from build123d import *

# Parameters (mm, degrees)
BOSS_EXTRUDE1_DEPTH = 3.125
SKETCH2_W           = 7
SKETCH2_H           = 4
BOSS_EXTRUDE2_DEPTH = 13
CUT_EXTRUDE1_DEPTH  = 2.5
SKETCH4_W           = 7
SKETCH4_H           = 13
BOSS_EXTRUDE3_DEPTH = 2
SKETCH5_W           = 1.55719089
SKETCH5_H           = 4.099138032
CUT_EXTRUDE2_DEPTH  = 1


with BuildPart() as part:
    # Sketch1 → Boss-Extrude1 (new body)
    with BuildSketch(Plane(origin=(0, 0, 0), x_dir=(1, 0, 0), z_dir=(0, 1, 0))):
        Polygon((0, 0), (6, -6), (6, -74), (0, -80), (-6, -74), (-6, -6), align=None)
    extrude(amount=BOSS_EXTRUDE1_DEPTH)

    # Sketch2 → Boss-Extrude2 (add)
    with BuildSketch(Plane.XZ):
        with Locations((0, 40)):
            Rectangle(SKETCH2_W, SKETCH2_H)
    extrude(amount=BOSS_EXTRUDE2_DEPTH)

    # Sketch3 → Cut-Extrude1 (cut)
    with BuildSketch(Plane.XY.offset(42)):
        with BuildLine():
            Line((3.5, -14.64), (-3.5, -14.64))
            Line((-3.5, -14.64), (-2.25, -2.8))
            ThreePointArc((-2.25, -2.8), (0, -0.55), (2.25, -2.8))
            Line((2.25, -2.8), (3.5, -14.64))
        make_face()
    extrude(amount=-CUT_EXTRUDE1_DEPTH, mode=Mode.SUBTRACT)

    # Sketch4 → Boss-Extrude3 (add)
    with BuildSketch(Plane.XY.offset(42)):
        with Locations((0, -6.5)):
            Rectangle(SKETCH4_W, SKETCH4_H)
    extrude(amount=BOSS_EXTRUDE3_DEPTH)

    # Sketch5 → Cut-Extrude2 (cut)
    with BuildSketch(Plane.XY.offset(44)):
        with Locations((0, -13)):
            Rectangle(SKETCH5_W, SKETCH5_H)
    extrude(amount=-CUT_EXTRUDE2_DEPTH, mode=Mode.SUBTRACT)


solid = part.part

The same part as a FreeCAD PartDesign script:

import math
import FreeCAD as App
import Part
import Sketcher

V = App.Vector
Q = App.Units.Quantity


def add_polygon(sketch, points):
    """Adds a closed chain of lines whose ends are joined by coincident constraints."""
    first, n = sketch.GeometryCount, len(points)
    for a, b in zip(points, points[1:] + points[:1]):
        sketch.addGeometry(Part.LineSegment(App.Vector(*a, 0), App.Vector(*b, 0)), False)
    for i in range(n):
        sketch.addConstraint(Sketcher.Constraint("Coincident", first + i, 2, first + (i + 1) % n, 1))

doc = App.newDocument("Part")
body = doc.addObject("PartDesign::Body", "Body")

# Sketch on XZ plane
sketch1 = body.newObject("Sketcher::SketchObject", "Sketch")
sketch1.AttachmentSupport = (doc.getObject("XZ_Plane"), [""])
sketch1.MapMode = "FlatFace"
add_polygon(sketch1, [(6, 6), (0, 0), (-6, 6), (-6, 74), (0, 80), (6, 74)])  # lines 0-5
sketch1.addConstraint(Sketcher.Constraint("Vertical", 2))
sketch1.addConstraint(Sketcher.Constraint("Vertical", 5))
sketch1.addConstraint(Sketcher.Constraint("Coincident", 0, 2, -1, 1))
sketch1.addConstraint(Sketcher.Constraint("Symmetric", 2, 2, 4, 2, -2))
sketch1.addConstraint(Sketcher.Constraint("PointOnObject", 3, 2, -2))
sketch1.addConstraint(Sketcher.Constraint("Perpendicular", 0, 1))
sketch1.addConstraint(Sketcher.Constraint("Perpendicular", 1, 3))
sketch1.addConstraint(Sketcher.Constraint("Perpendicular", 3, 4))
sketch1.addConstraint(Sketcher.Constraint("DistanceY", 2, 1, 2, 2, Q("68 mm")))
sketch1.addConstraint(Sketcher.Constraint("DistanceX", 1, 2, -1, 1, Q("6 mm")))
pad1 = body.newObject("PartDesign::Pad", "Pad")
pad1.Profile = sketch1
pad1.Length = 3.125
pad1.Reversed = True

# Sketch on XZ plane
sketch2 = body.newObject("Sketcher::SketchObject", "Sketch001")
sketch2.AttachmentSupport = (doc.getObject("XZ_Plane"), [""])
sketch2.MapMode = "FlatFace"
add_polygon(sketch2, [(-3.5, 42), (-3.5, 38), (3.5, 38), (3.5, 42)])  # lines 0-3
sketch2.addConstraint(Sketcher.Constraint("Vertical", 0))
sketch2.addConstraint(Sketcher.Constraint("Horizontal", 1))
sketch2.addConstraint(Sketcher.Constraint("Vertical", 2))
sketch2.addConstraint(Sketcher.Constraint("Horizontal", 3))
sketch2.addConstraint(Sketcher.Constraint("DistanceX", 1, 1, 1, 2, Q("7 mm")))
sketch2.addConstraint(Sketcher.Constraint("DistanceY", 0, 2, 0, 1, Q("4 mm")))
sketch2.addConstraint(Sketcher.Constraint("DistanceY", -1, 1, 0, 2, Q("38 mm")))
sketch2.addConstraint(Sketcher.Constraint("DistanceX", 0, 2, -1, 1, Q("3.5 mm")))
pad2 = body.newObject("PartDesign::Pad", "Pad001")
pad2.Profile = sketch2
pad2.Length = 13

# Sketch on XY plane
sketch3 = body.newObject("Sketcher::SketchObject", "Sketch002")
sketch3.AttachmentSupport = (doc.getObject("XY_Plane"), [""])
sketch3.MapMode = "FlatFace"
sketch3.AttachmentOffset = App.Placement(V(0, 0, 42), App.Rotation())
sketch3.addGeometry(Part.LineSegment(V(-3.5, -14.64, 0), V(3.5, -14.64, 0)), False)
sketch3.addGeometry(Part.LineSegment(V(3.5, -14.64, 0), V(2.25, -2.8, 0)), False)
sketch3.addGeometry(Part.ArcOfCircle(Part.Circle(V(0, -2.8, 0), V(0, 0, 1), 2.25), math.radians(0), math.radians(180)), False)
sketch3.addGeometry(Part.LineSegment(V(-2.25, -2.8, 0), V(-3.5, -14.64, 0)), False)
sketch3.addConstraint(Sketcher.Constraint("Coincident", 0, 2, 1, 1))
sketch3.addConstraint(Sketcher.Constraint("Coincident", 1, 2, 2, 1))
sketch3.addConstraint(Sketcher.Constraint("Coincident", 2, 2, 3, 1))
sketch3.addConstraint(Sketcher.Constraint("Coincident", 3, 2, 0, 1))
sketch3.addConstraint(Sketcher.Constraint("Horizontal", 0))
sketch3.addConstraint(Sketcher.Constraint("Symmetric", 1, 2, 2, 2, -2))
sketch3.addConstraint(Sketcher.Constraint("Horizontal", 2, 3, 1, 2))
sketch3.addConstraint(Sketcher.Constraint("Equal", 1, 3))
sketch3.addConstraint(Sketcher.Constraint("DistanceX", 0, 1, 0, 2, Q("7 mm")))
sketch3.addConstraint(Sketcher.Constraint("Radius", 2, Q("2.25 mm")))
sketch3.addConstraint(Sketcher.Constraint("DistanceY", 2, 3, -1, 1, Q("2.8 mm")))
sketch3.addConstraint(Sketcher.Constraint("DistanceY", 0, 2, -1, 1, Q("14.64 mm")))
pocket1 = body.newObject("PartDesign::Pocket", "Pocket")
pocket1.Profile = sketch3
pocket1.Length = 2.5

# Sketch on XY plane
sketch4 = body.newObject("Sketcher::SketchObject", "Sketch003")
sketch4.AttachmentSupport = (doc.getObject("XY_Plane"), [""])
sketch4.MapMode = "FlatFace"
sketch4.AttachmentOffset = App.Placement(V(0, 0, 42), App.Rotation())
add_polygon(sketch4, [(-3.5, 0), (-3.5, -13), (3.5, -13), (3.5, 0)])  # lines 0-3
sketch4.addConstraint(Sketcher.Constraint("Vertical", 0))
sketch4.addConstraint(Sketcher.Constraint("Horizontal", 1))
sketch4.addConstraint(Sketcher.Constraint("Vertical", 2))
sketch4.addConstraint(Sketcher.Constraint("Horizontal", 3))
sketch4.addConstraint(Sketcher.Constraint("Symmetric", 2, 2, 3, 2, -1, 1))
sketch4.addConstraint(Sketcher.Constraint("DistanceX", 1, 1, 1, 2, Q("7 mm")))
sketch4.addConstraint(Sketcher.Constraint("DistanceY", 0, 2, 0, 1, Q("13 mm")))
pad3 = body.newObject("PartDesign::Pad", "Pad002")
pad3.Profile = sketch4
pad3.Length = 2

# Sketch on XY plane
sketch5 = body.newObject("Sketcher::SketchObject", "Sketch004")
sketch5.AttachmentSupport = (doc.getObject("XY_Plane"), [""])
sketch5.MapMode = "FlatFace"
sketch5.AttachmentOffset = App.Placement(V(0, 0, 44), App.Rotation())
add_polygon(sketch5, [(-0.778595, -10.950431), (-0.778595, -15.049569), (0.778595, -15.049569), (0.778595, -10.950431)])  # lines 0-3
sketch5.addConstraint(Sketcher.Constraint("Vertical", 0))
sketch5.addConstraint(Sketcher.Constraint("Horizontal", 1))
sketch5.addConstraint(Sketcher.Constraint("Vertical", 2))
sketch5.addConstraint(Sketcher.Constraint("Horizontal", 3))
sketch5.addConstraint(Sketcher.Constraint("DistanceX", 1, 1, 1, 2, Q("1.557191 mm")))
sketch5.addConstraint(Sketcher.Constraint("DistanceY", 0, 2, 0, 1, Q("4.099138 mm")))
sketch5.addConstraint(Sketcher.Constraint("DistanceY", 0, 2, -1, 1, Q("15.049569 mm")))
sketch5.addConstraint(Sketcher.Constraint("DistanceX", 0, 2, -1, 1, Q("0.778595 mm")))
pocket2 = body.newObject("PartDesign::Pocket", "Pocket001")
pocket2.Profile = sketch5
pocket2.Length = 1

doc.recompute()
